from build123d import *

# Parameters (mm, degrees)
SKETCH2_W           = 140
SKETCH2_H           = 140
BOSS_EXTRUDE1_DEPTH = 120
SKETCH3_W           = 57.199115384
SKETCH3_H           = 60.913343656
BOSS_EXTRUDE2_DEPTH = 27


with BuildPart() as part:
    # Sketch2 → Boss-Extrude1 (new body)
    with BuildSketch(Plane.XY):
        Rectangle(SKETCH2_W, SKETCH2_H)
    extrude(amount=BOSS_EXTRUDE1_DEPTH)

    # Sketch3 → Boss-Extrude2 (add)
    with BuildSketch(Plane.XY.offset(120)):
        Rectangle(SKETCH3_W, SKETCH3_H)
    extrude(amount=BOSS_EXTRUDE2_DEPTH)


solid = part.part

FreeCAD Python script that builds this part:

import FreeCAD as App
import Part
import Sketcher


def add_polygon(sketch, points):
    """Adds a closed chain of lines whose ends are joined by coincident constraints."""
    first, n = sketch.GeometryCount, len(points)
    for a, b in zip(points, points[1:] + points[:1]):
        sketch.addGeometry(Part.LineSegment(App.Vector(*a, 0), App.Vector(*b, 0)), False)
    for i in range(n):
        sketch.addConstraint(Sketcher.Constraint("Coincident", first + i, 2, first + (i + 1) % n, 1))

doc = App.newDocument("Part")
body = doc.addObject("PartDesign::Body", "Body")

# Sketch on XY plane
sketch1 = body.newObject("Sketcher::SketchObject", "Sketch")
sketch1.AttachmentSupport = (doc.getObject("XY_Plane"), [""])
sketch1.MapMode = "FlatFace"
add_polygon(sketch1, [(-70, 70), (-70, -70), (70, -70), (70, 70)])  # lines 0-3
sketch1.addConstraint([
    Sketcher.Constraint("Vertical", 0),
    Sketcher.Constraint("Horizontal", 1),
    Sketcher.Constraint("Vertical", 2),
    Sketcher.Constraint("Horizontal", 3),
    Sketcher.Constraint("Symmetric", 0, 2, 2, 2, -1, 1),
    Sketcher.Constraint("Equal", 3, 0),
    Sketcher.Constraint("DistanceX", 1, 1, 1, 2, 140.0),
])
pad1 = body.newObject("PartDesign::Pad", "Pad")
pad1.Profile = sketch1
pad1.Length = 120

# Sketch on XY plane
sketch2 = body.newObject("Sketcher::SketchObject", "Sketch001")
sketch2.AttachmentSupport = (doc.getObject("XY_Plane"), [""])
sketch2.MapMode = "FlatFace"
sketch2.AttachmentOffset = App.Placement(App.Vector(0, 0, 120), App.Rotation())
add_polygon(sketch2, [(-29, 30), (-29, -30), (29, -30), (29, 30)])  # lines 0-3
sketch2.addConstraint([
    Sketcher.Constraint("Vertical", 0),
    Sketcher.Constraint("Horizontal", 1),
    Sketcher.Constraint("Vertical", 2),
    Sketcher.Constraint("Horizontal", 3),
    Sketcher.Constraint("Symmetric", 0, 2, 2, 2, -1, 1),
    Sketcher.Constraint("DistanceX", 1, 1, 1, 2, 57.199115),
    Sketcher.Constraint("DistanceY", 0, 2, 0, 1, 60.913344),
])
pad2 = body.newObject("PartDesign::Pad", "Pad001")
pad2.Profile = sketch2
pad2.Length = 27

doc.recompute()
